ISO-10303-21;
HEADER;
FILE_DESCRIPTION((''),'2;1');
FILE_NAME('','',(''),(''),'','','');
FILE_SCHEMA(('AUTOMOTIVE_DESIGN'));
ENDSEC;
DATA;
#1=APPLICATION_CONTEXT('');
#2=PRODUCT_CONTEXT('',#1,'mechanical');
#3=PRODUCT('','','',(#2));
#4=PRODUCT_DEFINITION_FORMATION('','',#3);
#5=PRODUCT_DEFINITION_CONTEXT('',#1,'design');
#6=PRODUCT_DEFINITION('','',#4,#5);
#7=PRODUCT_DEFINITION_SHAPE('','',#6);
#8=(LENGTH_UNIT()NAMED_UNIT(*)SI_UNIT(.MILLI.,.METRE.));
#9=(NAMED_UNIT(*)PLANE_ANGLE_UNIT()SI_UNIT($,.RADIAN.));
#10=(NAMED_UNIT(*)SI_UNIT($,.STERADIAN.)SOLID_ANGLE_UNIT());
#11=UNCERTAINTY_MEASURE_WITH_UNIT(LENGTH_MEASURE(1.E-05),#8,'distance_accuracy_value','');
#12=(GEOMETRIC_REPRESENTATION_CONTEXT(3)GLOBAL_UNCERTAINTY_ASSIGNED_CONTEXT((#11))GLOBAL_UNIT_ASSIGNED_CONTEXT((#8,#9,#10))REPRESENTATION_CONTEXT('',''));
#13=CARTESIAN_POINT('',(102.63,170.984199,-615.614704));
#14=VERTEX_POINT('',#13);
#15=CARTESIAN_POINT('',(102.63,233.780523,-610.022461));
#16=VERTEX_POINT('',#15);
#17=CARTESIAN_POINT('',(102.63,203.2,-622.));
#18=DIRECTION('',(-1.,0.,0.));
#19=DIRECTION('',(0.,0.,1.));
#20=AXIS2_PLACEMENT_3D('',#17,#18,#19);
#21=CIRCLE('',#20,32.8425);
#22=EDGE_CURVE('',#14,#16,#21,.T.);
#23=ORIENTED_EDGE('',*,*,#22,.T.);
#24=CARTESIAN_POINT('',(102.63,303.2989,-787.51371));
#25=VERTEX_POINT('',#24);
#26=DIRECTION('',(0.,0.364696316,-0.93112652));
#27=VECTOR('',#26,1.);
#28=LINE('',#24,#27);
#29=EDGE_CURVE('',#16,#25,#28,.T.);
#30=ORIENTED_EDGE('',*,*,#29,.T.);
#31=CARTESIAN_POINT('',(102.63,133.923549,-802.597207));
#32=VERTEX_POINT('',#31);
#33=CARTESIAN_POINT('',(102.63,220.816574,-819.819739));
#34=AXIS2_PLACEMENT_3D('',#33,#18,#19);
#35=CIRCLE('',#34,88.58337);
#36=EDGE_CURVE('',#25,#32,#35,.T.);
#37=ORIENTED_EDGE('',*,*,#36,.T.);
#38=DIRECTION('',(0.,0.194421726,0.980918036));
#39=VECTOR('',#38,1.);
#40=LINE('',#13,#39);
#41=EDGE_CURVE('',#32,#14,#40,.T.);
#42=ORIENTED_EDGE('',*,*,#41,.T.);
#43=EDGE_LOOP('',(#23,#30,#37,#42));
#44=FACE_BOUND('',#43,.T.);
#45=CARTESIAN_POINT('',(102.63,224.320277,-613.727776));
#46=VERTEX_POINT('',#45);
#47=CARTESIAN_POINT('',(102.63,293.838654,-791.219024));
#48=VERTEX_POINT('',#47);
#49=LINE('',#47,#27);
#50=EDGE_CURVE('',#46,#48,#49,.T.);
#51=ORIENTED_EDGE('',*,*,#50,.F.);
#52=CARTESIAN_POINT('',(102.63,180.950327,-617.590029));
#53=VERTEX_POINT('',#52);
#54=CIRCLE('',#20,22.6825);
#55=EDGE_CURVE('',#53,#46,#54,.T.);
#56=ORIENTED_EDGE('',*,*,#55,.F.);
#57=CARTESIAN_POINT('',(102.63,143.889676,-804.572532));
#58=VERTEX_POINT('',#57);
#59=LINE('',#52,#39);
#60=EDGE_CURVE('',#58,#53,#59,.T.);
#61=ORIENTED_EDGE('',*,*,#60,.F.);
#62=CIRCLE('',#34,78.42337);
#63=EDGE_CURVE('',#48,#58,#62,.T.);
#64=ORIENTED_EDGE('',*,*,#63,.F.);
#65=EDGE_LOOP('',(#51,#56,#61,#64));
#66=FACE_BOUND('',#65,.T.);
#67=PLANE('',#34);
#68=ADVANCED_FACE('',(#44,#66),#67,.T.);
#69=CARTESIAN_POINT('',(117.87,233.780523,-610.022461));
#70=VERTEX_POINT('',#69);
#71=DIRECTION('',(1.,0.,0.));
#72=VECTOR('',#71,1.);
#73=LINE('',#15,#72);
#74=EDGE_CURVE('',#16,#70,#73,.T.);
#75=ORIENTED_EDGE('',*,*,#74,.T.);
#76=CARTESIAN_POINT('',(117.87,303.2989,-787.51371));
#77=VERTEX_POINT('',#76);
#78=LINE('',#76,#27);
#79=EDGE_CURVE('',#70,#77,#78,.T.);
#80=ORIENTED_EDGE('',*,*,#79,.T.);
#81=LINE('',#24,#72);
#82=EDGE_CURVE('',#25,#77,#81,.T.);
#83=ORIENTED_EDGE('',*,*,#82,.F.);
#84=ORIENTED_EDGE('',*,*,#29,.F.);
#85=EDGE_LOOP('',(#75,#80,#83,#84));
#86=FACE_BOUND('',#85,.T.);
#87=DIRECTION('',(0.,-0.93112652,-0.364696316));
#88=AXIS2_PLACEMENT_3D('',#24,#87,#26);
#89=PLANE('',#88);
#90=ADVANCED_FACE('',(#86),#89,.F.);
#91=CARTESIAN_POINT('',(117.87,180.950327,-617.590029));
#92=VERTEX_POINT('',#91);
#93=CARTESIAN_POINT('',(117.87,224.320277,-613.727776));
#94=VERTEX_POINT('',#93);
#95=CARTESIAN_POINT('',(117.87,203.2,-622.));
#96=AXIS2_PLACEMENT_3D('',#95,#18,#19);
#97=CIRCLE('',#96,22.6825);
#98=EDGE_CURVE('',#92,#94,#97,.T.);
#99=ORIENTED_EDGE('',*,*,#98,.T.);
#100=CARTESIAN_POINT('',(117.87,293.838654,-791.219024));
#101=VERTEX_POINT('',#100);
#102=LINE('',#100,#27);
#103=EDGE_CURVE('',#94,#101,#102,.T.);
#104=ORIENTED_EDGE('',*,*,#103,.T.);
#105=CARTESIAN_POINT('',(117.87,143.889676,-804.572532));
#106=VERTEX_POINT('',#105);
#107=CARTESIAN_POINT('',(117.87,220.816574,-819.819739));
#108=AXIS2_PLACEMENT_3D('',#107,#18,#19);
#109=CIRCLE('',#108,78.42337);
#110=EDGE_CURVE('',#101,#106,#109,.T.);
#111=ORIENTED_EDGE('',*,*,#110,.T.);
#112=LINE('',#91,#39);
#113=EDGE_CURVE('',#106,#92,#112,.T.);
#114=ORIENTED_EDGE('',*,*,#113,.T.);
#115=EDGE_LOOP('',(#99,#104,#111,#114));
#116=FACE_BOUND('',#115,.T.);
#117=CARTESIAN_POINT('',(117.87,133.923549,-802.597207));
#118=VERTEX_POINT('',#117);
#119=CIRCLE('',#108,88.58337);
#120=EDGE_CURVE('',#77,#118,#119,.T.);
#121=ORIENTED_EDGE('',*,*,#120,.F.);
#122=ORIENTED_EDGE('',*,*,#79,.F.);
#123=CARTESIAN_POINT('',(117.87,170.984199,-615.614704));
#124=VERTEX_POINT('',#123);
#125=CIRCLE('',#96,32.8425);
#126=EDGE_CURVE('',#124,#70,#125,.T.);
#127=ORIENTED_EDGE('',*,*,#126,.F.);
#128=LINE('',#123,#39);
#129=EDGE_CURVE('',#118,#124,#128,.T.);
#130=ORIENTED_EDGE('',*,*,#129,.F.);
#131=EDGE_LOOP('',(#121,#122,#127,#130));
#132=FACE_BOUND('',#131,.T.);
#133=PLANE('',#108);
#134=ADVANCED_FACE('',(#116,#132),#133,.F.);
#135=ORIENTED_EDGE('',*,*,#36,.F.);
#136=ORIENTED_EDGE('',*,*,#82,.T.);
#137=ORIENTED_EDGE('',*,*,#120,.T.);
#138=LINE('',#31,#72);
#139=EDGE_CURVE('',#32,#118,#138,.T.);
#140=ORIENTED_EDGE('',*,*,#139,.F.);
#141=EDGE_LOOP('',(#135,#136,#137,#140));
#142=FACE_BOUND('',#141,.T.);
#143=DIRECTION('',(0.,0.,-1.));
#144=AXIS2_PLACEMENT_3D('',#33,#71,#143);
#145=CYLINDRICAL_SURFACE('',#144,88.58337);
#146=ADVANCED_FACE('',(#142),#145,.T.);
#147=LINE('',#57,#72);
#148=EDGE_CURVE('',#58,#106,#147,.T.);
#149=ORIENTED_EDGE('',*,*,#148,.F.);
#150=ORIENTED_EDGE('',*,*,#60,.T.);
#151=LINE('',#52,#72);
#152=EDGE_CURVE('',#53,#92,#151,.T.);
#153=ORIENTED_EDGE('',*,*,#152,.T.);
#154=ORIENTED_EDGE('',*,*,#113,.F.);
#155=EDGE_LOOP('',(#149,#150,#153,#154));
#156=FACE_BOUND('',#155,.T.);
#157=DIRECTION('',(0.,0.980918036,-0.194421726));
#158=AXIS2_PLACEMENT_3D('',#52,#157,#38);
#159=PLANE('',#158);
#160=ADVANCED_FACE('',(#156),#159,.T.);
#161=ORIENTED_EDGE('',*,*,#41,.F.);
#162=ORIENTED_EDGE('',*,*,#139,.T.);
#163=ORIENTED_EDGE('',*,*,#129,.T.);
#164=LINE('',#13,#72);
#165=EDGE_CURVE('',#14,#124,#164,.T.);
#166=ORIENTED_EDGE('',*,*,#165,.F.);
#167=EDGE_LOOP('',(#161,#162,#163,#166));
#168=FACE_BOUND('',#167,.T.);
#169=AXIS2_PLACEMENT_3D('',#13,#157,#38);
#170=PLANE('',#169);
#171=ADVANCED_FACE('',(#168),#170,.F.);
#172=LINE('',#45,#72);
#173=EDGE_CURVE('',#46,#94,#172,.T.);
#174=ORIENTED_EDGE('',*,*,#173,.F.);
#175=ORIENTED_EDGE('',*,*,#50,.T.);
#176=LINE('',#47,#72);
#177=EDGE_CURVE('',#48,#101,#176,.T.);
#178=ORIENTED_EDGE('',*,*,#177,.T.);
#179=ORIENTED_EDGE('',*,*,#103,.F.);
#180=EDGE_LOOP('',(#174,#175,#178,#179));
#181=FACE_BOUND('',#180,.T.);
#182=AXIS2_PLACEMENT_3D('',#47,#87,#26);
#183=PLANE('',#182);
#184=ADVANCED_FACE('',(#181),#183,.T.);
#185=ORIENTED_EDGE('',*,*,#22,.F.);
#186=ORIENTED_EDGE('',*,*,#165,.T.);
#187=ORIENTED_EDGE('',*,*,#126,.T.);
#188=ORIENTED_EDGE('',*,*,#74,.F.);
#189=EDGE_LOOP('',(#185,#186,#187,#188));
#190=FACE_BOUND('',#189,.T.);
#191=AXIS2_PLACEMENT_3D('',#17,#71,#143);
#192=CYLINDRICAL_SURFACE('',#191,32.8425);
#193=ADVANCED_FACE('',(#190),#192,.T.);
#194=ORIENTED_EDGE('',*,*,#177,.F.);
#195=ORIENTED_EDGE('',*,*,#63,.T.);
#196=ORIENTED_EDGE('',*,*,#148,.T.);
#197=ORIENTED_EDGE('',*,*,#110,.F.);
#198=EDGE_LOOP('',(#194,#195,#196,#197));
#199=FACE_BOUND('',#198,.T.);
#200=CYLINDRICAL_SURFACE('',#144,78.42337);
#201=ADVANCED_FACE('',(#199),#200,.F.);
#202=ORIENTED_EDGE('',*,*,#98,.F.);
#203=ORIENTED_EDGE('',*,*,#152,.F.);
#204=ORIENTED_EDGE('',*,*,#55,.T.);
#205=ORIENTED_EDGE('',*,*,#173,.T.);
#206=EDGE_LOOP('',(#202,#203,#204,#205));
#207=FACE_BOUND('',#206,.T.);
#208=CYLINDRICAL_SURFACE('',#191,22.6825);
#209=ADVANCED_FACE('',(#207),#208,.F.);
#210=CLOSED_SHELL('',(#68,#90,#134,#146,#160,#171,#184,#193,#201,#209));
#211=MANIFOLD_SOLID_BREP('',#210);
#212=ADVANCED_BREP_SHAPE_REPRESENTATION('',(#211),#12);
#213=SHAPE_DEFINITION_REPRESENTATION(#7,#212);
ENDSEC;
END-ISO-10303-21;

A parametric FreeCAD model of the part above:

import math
import FreeCAD as App
import Part
import Sketcher
from FreeCAD import Vector
Q = App.Units.Quantity

doc = App.newDocument("Part")
body = doc.addObject("PartDesign::Body", "Body")

# Sketch on YZ plane
sketch1 = body.newObject("Sketcher::SketchObject", "Sketch")
sketch1.AttachmentSupport = (doc.getObject("YZ_Plane"), [""])
sketch1.MapMode = "FlatFace"
sketch1.AttachmentOffset = App.Placement(Vector(0, 0, 110.25), App.Rotation())
sketch1.addGeometry(Part.LineSegment(Vector(133.923549, -802.597207, 0), Vector(170.984199, -615.614704, 0)), False)
sketch1.addGeometry(Part.ArcOfCircle(Part.Circle(Vector(203.2, -622, 0), Vector(0, 0, 1), 32.8425), math.radians(21.388895), math.radians(168.789056)), False)
sketch1.addGeometry(Part.LineSegment(Vector(233.780523, -610.022461, 0), Vector(303.2989, -787.51371, 0)), False)
sketch1.addGeometry(Part.ArcOfCircle(Part.Circle(Vector(220.816574, -819.819739, 0), Vector(0, 0, 1), 88.58337), math.radians(168.789056), math.radians(381.388895)), False)
sketch1.addGeometry(Part.LineSegment(Vector(180.950327, -617.590029, 0), Vector(143.889676, -804.572532, 0)), False)
sketch1.addGeometry(Part.ArcOfCircle(Part.Circle(Vector(220.816574, -819.819739, 0), Vector(0, 0, 1), 78.42337), math.radians(168.789056), math.radians(381.388895)), False)
sketch1.addGeometry(Part.LineSegment(Vector(293.838654, -791.219024, 0), Vector(224.320277, -613.727776, 0)), False)
sketch1.addGeometry(Part.ArcOfCircle(Part.Circle(Vector(203.2, -622, 0), Vector(0, 0, 1), 22.6825), math.radians(21.388895), math.radians(168.789056)), False)
sketch1.addConstraint(Sketcher.Constraint("Coincident", 0, 2, 1, 2))
sketch1.addConstraint(Sketcher.Constraint("Coincident", 1, 1, 2, 1))
sketch1.addConstraint(Sketcher.Constraint("Coincident", 2, 2, 3, 2))
sketch1.addConstraint(Sketcher.Constraint("Coincident", 3, 1, 0, 1))
sketch1.addConstraint(Sketcher.Constraint("Coincident", 4, 2, 5, 1))
sketch1.addConstraint(Sketcher.Constraint("Coincident", 5, 2, 6, 1))
sketch1.addConstraint(Sketcher.Constraint("Coincident", 6, 2, 7, 1))
sketch1.addConstraint(Sketcher.Constraint("Coincident", 7, 2, 4, 1))
sketch1.addConstraint(Sketcher.Constraint("Coincident", 5, 3, 3, 3))
sketch1.addConstraint(Sketcher.Constraint("Coincident", 7, 3, 1, 3))
sketch1.addConstraint(Sketcher.Constraint("DistanceX", -1, 1, 1, 3, Q("8 in")))
sketch1.addConstraint(Sketcher.Constraint("Radius", 1, Q("32.8425 mm")))
sketch1.addConstraint(Sketcher.Constraint("Radius", 7, Q("22.6825 mm")))
sketch1.addConstraint(Sketcher.Constraint("Radius", 3, Q("88.58337 mm")))
sketch1.addConstraint(Sketcher.Constraint("Radius", 5, Q("78.42337 mm")))
sketch1.addConstraint(Sketcher.Constraint("DistanceY", 1, 3, -1, 1, Q("622 mm")))
sketch1.addConstraint(Sketcher.Constraint("DistanceX", -1, 1, 0, 2, Q("170.984199 mm")))
sketch1.addConstraint(Sketcher.Constraint("DistanceX", -1, 1, 2, 2, Q("303.2989 mm")))
sketch1.addConstraint(Sketcher.Constraint("DistanceX", 4, 2, 3, 3, Q("76.926899 mm")))
sketch1.addConstraint(Sketcher.Constraint("DistanceY", 3, 3, -1, 1, Q("819.819739 mm")))
sketch1.addConstraint(Sketcher.Constraint("DistanceY", 1, 1, -1, 1, Q("610.022461 mm")))
sketch1.addConstraint(Sketcher.Constraint("DistanceY", 2, 2, -1, 1, Q("787.51371 mm")))
sketch1.addConstraint(Sketcher.Constraint("DistanceX", -1, 1, 3, 1, Q("133.923549 mm")))
sketch1.addConstraint(Sketcher.Constraint("DistanceY", 7, 2, -1, 1, Q("617.590029 mm")))
sketch1.addConstraint(Sketcher.Constraint("DistanceX", 3, 3, 5, 2, Q("73.02208 mm")))
sketch1.addConstraint(Sketcher.Constraint("DistanceY", 0, 2, 6, 2, Q("1.886929 mm")))
pad1 = body.newObject("PartDesign::Pad", "Pad")
pad1.Profile = sketch1
pad1.Length = Q("0.6 in")
pad1.Midplane = True

doc.recompute()
